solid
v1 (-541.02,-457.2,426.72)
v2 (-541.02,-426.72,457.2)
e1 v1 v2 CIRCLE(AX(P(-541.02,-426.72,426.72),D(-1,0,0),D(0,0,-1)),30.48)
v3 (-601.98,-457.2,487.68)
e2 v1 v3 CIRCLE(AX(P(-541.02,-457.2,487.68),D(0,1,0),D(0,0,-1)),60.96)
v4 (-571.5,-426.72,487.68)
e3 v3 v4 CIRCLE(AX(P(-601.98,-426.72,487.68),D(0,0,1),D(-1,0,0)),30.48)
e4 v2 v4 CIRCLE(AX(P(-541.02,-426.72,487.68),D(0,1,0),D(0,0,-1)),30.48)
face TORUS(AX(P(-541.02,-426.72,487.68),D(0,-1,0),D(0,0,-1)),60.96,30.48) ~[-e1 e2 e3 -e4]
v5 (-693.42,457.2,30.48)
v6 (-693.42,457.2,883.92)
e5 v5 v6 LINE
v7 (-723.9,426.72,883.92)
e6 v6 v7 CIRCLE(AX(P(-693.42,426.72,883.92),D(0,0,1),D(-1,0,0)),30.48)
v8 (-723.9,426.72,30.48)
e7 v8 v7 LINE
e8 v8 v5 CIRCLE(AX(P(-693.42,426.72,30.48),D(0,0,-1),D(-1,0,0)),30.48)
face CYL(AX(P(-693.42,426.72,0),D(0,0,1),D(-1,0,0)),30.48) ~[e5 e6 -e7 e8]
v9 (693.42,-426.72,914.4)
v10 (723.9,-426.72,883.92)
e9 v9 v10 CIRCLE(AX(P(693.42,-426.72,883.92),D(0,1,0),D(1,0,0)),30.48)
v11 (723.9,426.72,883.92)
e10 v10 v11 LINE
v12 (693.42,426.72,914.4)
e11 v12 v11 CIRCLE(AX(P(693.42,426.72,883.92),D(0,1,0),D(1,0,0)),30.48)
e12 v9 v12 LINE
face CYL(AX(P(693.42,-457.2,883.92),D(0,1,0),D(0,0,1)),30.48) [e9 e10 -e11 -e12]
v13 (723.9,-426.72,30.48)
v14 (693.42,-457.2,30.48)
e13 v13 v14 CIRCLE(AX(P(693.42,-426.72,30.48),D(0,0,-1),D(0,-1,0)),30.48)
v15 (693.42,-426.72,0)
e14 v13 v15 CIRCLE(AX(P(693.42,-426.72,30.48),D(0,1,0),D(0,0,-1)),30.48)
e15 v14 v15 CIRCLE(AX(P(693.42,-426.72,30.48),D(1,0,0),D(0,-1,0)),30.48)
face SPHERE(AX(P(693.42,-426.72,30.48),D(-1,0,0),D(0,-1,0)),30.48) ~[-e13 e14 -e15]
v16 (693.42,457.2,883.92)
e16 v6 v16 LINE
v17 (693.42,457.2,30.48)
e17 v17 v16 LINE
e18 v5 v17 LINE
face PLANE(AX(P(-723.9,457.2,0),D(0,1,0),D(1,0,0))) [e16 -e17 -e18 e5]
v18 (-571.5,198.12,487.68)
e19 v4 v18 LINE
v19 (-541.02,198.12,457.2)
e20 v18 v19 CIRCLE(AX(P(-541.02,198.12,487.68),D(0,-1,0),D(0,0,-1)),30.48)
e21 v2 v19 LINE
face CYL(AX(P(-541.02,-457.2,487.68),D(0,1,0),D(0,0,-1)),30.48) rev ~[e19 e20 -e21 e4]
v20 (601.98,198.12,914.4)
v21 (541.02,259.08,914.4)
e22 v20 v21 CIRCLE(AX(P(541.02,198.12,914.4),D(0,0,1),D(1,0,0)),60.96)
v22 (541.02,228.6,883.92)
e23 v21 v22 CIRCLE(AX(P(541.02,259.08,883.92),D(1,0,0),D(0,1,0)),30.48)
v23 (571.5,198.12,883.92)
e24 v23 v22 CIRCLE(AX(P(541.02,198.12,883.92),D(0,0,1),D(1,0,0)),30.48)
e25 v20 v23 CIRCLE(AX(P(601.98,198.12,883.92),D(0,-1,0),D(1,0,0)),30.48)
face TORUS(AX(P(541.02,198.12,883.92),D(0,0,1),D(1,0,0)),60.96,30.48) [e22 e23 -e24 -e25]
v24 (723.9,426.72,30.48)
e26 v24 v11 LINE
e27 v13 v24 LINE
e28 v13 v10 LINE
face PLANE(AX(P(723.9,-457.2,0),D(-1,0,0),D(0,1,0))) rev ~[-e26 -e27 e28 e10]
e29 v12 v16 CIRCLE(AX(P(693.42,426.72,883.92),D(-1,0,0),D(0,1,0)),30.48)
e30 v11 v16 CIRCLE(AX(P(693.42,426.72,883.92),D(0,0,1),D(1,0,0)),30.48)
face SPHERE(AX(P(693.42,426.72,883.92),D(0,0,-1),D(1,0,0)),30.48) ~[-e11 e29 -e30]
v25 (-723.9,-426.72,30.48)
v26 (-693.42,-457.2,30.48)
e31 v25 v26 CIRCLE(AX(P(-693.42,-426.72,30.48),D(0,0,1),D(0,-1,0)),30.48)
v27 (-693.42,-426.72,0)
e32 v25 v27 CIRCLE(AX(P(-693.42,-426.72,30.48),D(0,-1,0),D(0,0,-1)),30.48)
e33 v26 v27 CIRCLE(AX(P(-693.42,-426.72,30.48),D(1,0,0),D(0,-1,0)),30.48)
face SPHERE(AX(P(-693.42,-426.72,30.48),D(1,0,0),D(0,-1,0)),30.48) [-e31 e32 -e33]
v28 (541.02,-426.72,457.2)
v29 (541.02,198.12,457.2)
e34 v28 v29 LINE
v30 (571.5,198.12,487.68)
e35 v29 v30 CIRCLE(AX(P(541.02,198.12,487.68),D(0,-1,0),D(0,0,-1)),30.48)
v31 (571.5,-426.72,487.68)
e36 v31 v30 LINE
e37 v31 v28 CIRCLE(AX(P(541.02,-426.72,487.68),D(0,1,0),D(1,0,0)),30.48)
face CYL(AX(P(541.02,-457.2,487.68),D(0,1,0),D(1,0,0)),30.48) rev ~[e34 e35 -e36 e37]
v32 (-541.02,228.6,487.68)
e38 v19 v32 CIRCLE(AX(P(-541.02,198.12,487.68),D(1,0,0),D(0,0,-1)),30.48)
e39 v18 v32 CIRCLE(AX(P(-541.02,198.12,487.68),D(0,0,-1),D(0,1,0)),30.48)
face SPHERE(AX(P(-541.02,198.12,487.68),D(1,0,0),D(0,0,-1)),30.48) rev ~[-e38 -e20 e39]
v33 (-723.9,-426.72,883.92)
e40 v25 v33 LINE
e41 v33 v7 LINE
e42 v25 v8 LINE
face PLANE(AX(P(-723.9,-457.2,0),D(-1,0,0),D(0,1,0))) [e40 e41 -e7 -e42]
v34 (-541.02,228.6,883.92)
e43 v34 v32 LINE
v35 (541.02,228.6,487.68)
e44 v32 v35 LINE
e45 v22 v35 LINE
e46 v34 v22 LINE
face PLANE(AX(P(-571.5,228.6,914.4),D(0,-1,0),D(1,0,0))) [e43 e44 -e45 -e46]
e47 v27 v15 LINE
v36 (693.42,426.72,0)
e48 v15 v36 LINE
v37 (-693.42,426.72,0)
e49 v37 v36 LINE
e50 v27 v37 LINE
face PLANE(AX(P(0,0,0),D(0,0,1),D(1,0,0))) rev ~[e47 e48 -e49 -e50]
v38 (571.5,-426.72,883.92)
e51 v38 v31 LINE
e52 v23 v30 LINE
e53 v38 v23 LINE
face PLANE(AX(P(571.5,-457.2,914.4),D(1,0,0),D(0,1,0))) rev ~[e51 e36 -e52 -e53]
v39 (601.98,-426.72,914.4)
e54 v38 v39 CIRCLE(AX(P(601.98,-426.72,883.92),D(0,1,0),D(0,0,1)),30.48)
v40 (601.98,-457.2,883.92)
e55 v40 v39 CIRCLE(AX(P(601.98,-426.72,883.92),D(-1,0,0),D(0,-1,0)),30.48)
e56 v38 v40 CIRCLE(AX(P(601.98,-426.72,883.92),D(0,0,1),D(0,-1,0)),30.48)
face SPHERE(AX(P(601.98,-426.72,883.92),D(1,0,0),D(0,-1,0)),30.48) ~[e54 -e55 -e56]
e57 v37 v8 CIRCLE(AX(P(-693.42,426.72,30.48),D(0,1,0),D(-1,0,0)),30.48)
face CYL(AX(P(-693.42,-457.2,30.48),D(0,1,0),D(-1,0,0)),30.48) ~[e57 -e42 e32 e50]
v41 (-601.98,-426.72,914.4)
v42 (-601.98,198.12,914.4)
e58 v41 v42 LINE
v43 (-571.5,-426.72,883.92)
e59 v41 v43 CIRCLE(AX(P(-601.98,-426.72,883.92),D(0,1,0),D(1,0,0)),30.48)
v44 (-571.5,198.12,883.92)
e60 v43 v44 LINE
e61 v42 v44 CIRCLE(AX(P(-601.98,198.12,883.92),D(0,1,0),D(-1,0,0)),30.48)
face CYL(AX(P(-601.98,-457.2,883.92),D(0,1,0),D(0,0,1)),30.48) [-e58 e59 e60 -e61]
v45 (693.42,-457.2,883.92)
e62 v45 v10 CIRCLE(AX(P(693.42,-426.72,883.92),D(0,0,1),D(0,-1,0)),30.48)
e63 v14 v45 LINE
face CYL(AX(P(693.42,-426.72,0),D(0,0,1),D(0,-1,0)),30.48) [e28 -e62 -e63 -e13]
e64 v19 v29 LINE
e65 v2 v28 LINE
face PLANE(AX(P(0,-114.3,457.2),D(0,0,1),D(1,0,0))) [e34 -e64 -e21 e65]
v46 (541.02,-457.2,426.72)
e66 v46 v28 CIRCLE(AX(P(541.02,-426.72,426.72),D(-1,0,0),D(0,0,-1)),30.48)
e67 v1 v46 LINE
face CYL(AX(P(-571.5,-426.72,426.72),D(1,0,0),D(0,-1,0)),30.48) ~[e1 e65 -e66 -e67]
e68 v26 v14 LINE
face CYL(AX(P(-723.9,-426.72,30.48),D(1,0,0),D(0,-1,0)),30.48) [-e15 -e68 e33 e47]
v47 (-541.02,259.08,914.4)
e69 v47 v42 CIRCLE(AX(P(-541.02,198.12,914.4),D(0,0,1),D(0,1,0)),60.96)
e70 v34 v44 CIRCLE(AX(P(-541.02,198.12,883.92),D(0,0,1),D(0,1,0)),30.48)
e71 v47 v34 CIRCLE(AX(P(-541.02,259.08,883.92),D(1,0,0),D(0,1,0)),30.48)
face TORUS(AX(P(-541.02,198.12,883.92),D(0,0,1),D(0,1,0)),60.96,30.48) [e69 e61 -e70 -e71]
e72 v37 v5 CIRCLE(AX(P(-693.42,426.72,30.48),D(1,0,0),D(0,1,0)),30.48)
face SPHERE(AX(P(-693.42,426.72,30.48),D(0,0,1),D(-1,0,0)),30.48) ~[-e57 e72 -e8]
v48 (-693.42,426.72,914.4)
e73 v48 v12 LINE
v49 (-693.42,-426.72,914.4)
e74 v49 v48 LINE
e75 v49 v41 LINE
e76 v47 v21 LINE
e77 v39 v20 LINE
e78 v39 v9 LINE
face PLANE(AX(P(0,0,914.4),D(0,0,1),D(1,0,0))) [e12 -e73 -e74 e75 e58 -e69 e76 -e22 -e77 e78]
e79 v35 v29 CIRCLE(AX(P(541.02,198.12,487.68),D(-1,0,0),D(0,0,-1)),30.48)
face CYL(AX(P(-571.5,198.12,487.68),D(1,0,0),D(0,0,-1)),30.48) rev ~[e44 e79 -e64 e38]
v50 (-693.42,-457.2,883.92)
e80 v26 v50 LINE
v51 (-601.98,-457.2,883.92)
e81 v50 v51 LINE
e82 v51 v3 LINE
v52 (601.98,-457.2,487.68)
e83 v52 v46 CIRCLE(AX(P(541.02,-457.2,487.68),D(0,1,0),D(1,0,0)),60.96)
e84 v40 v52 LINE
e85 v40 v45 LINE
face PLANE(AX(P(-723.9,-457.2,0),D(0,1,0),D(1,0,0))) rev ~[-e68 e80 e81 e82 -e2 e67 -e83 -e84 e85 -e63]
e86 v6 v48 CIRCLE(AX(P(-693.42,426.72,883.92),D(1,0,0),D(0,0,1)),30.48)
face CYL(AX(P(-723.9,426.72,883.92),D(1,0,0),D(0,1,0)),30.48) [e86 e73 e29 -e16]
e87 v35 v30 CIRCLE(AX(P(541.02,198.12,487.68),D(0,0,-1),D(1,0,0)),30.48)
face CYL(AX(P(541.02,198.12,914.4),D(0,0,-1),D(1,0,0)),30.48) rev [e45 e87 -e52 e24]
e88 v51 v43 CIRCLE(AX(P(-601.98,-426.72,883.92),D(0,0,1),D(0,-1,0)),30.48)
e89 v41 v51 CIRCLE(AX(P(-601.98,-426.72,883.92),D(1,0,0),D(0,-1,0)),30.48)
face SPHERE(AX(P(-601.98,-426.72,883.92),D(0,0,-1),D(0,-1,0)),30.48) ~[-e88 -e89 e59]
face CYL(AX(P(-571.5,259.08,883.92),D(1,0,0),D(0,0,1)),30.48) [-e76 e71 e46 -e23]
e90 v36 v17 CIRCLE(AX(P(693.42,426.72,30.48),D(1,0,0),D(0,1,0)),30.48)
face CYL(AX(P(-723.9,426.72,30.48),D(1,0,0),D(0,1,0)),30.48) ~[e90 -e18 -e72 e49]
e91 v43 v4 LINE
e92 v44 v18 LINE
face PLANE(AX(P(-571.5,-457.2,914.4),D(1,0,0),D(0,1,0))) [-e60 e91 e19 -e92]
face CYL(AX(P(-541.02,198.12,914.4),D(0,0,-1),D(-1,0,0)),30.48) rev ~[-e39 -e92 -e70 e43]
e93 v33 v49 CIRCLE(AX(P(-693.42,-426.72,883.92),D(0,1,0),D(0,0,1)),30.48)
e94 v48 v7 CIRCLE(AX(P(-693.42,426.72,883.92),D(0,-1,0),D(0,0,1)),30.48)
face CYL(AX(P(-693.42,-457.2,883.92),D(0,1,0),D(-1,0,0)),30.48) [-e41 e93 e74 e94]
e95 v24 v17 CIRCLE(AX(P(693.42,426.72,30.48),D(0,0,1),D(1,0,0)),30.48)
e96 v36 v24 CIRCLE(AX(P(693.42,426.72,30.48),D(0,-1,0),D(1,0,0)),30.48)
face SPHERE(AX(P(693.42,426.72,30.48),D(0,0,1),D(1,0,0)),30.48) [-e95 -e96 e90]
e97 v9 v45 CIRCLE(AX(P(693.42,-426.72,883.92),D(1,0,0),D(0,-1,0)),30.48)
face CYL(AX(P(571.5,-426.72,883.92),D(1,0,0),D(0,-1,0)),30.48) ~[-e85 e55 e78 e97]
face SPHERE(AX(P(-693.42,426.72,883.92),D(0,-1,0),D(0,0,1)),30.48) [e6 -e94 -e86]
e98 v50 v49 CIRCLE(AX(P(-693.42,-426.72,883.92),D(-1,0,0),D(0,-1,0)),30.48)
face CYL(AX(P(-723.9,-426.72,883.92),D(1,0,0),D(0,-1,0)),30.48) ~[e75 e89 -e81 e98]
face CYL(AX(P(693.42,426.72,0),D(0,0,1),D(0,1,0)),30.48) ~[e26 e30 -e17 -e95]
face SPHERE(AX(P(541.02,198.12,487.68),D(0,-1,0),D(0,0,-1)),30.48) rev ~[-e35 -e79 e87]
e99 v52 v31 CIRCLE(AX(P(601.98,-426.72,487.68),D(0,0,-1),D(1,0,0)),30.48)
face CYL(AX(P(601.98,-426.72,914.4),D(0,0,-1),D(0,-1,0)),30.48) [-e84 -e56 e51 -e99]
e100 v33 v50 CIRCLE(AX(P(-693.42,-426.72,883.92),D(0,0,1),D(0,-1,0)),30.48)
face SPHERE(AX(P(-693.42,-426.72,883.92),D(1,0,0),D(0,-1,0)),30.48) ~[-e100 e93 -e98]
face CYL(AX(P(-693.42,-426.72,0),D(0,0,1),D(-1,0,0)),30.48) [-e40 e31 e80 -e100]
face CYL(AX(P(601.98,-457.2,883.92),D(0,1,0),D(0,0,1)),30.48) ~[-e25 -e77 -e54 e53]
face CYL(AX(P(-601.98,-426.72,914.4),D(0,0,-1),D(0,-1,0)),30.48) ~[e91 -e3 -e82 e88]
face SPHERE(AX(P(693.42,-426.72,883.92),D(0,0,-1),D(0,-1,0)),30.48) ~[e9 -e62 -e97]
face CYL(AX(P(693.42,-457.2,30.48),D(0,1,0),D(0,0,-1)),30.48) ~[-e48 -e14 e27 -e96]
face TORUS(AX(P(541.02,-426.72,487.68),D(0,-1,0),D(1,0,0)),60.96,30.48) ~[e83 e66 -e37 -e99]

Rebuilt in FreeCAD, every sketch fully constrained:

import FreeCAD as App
import Part
import Sketcher
from FreeCAD import Vector
Q = App.Units.Quantity

doc = App.newDocument("Part")
params = doc.addObject("Spreadsheet::Sheet", "Params")
for row, (alias, value) in enumerate([
    ("sketch1_width", "57 in"),
    ("sketch1_height", "36 in"),
    ("pad1_length", "36 in"),
    ("sketch2_width", "45 in"),
    ("sketch2_height", "27 in"),
    ("pocket1_length", "18 in"),
    ("fillet_radius", "1.2 in"),
], start=1):
    params.set(f"A{row}", alias)
    params.set(f"B{row}", "=" + value)
    params.setAlias(f"B{row}", alias)

body = doc.addObject("PartDesign::Body", "Body")

sketch1 = body.newObject("Sketcher::SketchObject", "Sketch")
sketch1.AttachmentSupport = (doc.getObject("XY_Plane"), [""])
sketch1.MapMode = "FlatFace"
sketch1.addGeometry([
    Part.LineSegment(Vector(-724, 457, 0), Vector(-724, -457, 0)),
    Part.LineSegment(Vector(-724, -457, 0), Vector(724, -457, 0)),
    Part.LineSegment(Vector(724, -457, 0), Vector(724, 457, 0)),
    Part.LineSegment(Vector(724, 457, 0), Vector(-724, 457, 0)),
], False)
sketch1.addConstraint([
    Sketcher.Constraint("Coincident", 0, 2, 1, 1),
    Sketcher.Constraint("Coincident", 1, 2, 2, 1),
    Sketcher.Constraint("Coincident", 2, 2, 3, 1),
    Sketcher.Constraint("Coincident", 3, 2, 0, 1),
    Sketcher.Constraint("Vertical", 0),
    Sketcher.Constraint("Horizontal", 1),
    Sketcher.Constraint("Vertical", 2),
    Sketcher.Constraint("Horizontal", 3),
    Sketcher.Constraint("Symmetric", 0, 2, 2, 2, -1, 1),
    Sketcher.Constraint("DistanceX", 1, 1, 1, 2, Q("57 in")),
    Sketcher.Constraint("DistanceY", 0, 2, 0, 1, Q("36 in")),
])
sketch1.setExpression("Constraints[9]", "Params.sketch1_width")
sketch1.setExpression("Constraints[10]", "Params.sketch1_height")
pad1 = body.newObject("PartDesign::Pad", "Pad")
pad1.Profile = sketch1
pad1.setExpression("Length", "Params.pad1_length")

sketch2 = body.newObject("Sketcher::SketchObject", "Sketch001")
sketch2.AttachmentSupport = (doc.getObject("XY_Plane"), [""])
sketch2.MapMode = "FlatFace"
sketch2.AttachmentOffset = App.Placement(Vector(0, 0, 36 * 25.4), App.Rotation())
sketch2.addGeometry([
    Part.LineSegment(Vector(-572, 229, 0), Vector(-572, -457, 0)),
    Part.LineSegment(Vector(-572, -457, 0), Vector(572, -457, 0)),
    Part.LineSegment(Vector(572, -457, 0), Vector(572, 229, 0)),
    Part.LineSegment(Vector(572, 229, 0), Vector(-572, 229, 0)),
], False)
sketch2.addConstraint([
    Sketcher.Constraint("Coincident", 0, 2, 1, 1),
    Sketcher.Constraint("Coincident", 1, 2, 2, 1),
    Sketcher.Constraint("Coincident", 2, 2, 3, 1),
    Sketcher.Constraint("Coincident", 3, 2, 0, 1),
    Sketcher.Constraint("Vertical", 0),
    Sketcher.Constraint("Horizontal", 1),
    Sketcher.Constraint("Vertical", 2),
    Sketcher.Constraint("Horizontal", 3),
    Sketcher.Constraint("DistanceX", 1, 1, 1, 2, Q("45 in")),
    Sketcher.Constraint("DistanceY", 0, 2, 0, 1, Q("27 in")),
    Sketcher.Constraint("DistanceY", 0, 2, -1, 1, Q("18 in")),
    Sketcher.Constraint("DistanceX", 0, 2, -1, 1, Q("22.5 in")),
])
sketch2.setExpression("Constraints[8]", "Params.sketch2_width")
sketch2.setExpression("Constraints[9]", "Params.sketch2_height")
pocket1 = body.newObject("PartDesign::Pocket", "Pocket")
pocket1.Profile = sketch2
pocket1.setExpression("Length", "Params.pocket1_length")
doc.recompute()

fillet = body.newObject("PartDesign::Fillet", "Fillet")
fillet.Base = (pocket1, ["Edge1"])
fillet.UseAllEdges = True
fillet.setExpression("Radius", "Params.fillet_radius")

doc.recompute()
